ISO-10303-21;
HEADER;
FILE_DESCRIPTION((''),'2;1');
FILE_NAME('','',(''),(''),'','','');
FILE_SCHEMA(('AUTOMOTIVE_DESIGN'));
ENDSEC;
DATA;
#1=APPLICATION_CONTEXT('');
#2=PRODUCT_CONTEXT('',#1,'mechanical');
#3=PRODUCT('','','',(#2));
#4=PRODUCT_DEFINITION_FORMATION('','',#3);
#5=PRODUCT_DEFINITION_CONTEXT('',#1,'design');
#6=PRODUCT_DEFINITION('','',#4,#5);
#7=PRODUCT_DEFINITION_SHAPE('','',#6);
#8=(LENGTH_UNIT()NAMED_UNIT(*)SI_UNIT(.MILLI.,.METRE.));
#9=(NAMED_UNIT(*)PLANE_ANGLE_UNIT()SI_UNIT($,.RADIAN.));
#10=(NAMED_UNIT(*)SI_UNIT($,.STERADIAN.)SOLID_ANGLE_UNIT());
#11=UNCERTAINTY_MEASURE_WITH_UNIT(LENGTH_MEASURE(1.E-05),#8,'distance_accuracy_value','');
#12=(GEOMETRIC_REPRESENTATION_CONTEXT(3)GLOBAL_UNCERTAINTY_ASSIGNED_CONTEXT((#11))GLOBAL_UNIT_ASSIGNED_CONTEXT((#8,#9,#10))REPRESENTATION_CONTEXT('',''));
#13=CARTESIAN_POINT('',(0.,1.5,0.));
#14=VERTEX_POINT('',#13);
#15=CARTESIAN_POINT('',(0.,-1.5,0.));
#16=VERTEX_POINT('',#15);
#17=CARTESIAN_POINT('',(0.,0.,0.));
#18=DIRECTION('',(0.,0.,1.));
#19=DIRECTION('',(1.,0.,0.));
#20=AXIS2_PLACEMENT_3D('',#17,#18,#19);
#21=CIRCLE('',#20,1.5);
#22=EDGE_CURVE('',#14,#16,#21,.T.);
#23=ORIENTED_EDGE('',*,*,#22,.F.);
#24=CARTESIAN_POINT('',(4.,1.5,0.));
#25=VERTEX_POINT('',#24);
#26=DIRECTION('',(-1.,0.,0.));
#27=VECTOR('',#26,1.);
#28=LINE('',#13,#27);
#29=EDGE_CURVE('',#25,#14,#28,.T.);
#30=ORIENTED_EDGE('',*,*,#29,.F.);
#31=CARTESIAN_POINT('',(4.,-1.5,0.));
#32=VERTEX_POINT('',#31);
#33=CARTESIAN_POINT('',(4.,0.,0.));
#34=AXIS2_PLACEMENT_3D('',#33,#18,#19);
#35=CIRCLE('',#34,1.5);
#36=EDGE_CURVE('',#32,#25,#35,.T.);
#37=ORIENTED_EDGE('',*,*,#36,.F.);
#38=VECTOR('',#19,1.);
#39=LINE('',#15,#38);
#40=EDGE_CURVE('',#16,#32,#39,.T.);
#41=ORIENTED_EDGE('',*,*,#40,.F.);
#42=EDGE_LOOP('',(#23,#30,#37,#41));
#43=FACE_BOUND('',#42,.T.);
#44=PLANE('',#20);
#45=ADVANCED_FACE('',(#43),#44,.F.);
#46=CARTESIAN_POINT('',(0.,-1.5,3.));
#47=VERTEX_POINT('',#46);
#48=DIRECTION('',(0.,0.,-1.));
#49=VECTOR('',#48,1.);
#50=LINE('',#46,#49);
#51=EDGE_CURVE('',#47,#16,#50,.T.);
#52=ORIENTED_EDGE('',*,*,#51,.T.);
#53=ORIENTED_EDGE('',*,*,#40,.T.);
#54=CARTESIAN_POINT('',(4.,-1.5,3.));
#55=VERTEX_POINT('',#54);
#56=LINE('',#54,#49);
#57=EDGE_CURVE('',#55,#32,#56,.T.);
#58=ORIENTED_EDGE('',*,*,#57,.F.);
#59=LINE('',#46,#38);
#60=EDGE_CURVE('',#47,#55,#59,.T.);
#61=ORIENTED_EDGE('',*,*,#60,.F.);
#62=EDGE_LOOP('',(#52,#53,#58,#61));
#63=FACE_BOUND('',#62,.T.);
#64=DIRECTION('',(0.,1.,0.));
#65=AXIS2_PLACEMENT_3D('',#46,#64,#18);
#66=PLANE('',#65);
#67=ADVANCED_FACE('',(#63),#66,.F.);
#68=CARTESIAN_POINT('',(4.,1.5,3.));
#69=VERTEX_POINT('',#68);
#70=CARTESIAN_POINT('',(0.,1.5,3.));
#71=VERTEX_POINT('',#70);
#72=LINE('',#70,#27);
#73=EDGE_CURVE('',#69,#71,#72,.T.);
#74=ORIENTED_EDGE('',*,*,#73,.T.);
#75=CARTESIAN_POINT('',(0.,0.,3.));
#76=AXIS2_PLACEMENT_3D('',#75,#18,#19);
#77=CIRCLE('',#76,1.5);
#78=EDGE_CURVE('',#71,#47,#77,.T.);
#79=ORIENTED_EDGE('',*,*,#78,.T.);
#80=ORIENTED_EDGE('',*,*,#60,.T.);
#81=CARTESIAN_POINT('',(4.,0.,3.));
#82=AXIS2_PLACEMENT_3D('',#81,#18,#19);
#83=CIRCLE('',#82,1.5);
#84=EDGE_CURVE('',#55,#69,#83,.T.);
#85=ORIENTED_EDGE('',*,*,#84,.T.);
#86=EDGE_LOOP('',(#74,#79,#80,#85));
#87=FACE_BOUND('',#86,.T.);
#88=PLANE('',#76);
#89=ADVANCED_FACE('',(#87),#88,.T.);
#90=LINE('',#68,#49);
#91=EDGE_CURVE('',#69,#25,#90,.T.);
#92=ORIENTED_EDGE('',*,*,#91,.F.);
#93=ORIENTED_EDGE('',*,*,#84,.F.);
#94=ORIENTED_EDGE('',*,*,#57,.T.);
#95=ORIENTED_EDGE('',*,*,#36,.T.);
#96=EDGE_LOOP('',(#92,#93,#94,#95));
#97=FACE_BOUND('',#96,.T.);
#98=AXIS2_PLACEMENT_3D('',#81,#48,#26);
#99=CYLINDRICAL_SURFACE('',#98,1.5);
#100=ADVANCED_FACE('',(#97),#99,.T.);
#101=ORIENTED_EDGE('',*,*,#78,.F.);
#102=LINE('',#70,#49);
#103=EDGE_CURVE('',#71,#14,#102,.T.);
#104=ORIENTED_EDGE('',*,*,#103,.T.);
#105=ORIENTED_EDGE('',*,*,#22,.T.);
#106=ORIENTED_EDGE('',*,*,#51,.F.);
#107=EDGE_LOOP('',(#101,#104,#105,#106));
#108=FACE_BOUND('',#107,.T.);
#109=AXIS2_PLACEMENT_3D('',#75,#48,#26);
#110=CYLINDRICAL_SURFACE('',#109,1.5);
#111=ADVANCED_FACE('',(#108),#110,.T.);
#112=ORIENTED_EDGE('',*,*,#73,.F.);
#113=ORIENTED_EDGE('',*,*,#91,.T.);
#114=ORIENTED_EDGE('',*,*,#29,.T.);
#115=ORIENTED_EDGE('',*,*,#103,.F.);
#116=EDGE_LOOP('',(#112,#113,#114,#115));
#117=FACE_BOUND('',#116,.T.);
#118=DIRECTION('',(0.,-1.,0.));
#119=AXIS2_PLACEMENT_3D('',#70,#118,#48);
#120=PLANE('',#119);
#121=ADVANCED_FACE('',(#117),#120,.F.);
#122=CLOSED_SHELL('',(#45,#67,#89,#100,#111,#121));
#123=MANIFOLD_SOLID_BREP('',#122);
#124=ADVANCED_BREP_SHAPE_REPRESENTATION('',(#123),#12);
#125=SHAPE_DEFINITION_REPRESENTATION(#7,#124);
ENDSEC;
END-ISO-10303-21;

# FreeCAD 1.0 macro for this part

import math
import FreeCAD as App
import Part
import Sketcher
from FreeCAD import Vector

doc = App.newDocument("Part")
body = doc.addObject("PartDesign::Body", "Body")

# Sketch on XY plane
sketch1 = body.newObject("Sketcher::SketchObject", "Sketch")
sketch1.AttachmentSupport = (doc.getObject("XY_Plane"), [""])
sketch1.MapMode = "FlatFace"
sketch1.addGeometry([
    Part.LineSegment(Vector(4, 1.5, 0), Vector(0, 1.5, 0)),
    Part.ArcOfCircle(Part.Circle(Vector(0, 0, 0), Vector(0, 0, 1), 1.5), math.radians(90), math.radians(270)),
    Part.LineSegment(Vector(0, -1.5, 0), Vector(4, -1.5, 0)),
    Part.ArcOfCircle(Part.Circle(Vector(4, 0, 0), Vector(0, 0, 1), 1.5), math.radians(-90), math.radians(90)),
], False)
sketch1.addConstraint([
    Sketcher.Constraint("Tangent", 0, 2, 1, 1),
    Sketcher.Constraint("Tangent", 1, 2, 2, 1),
    Sketcher.Constraint("Tangent", 2, 2, 3, 1),
    Sketcher.Constraint("Tangent", 3, 2, 0, 1),
    Sketcher.Constraint("Horizontal", 0),
    Sketcher.Constraint("Horizontal", 2),
    Sketcher.Constraint("Coincident", 1, 3, -1, 1),
    Sketcher.Constraint("Radius", 1, 1.5),
    Sketcher.Constraint("DistanceX", 0, 2, 0, 1, 4.0),
])
pad1 = body.newObject("PartDesign::Pad", "Pad")
pad1.Profile = sketch1
pad1.Length = 3

doc.recompute()
